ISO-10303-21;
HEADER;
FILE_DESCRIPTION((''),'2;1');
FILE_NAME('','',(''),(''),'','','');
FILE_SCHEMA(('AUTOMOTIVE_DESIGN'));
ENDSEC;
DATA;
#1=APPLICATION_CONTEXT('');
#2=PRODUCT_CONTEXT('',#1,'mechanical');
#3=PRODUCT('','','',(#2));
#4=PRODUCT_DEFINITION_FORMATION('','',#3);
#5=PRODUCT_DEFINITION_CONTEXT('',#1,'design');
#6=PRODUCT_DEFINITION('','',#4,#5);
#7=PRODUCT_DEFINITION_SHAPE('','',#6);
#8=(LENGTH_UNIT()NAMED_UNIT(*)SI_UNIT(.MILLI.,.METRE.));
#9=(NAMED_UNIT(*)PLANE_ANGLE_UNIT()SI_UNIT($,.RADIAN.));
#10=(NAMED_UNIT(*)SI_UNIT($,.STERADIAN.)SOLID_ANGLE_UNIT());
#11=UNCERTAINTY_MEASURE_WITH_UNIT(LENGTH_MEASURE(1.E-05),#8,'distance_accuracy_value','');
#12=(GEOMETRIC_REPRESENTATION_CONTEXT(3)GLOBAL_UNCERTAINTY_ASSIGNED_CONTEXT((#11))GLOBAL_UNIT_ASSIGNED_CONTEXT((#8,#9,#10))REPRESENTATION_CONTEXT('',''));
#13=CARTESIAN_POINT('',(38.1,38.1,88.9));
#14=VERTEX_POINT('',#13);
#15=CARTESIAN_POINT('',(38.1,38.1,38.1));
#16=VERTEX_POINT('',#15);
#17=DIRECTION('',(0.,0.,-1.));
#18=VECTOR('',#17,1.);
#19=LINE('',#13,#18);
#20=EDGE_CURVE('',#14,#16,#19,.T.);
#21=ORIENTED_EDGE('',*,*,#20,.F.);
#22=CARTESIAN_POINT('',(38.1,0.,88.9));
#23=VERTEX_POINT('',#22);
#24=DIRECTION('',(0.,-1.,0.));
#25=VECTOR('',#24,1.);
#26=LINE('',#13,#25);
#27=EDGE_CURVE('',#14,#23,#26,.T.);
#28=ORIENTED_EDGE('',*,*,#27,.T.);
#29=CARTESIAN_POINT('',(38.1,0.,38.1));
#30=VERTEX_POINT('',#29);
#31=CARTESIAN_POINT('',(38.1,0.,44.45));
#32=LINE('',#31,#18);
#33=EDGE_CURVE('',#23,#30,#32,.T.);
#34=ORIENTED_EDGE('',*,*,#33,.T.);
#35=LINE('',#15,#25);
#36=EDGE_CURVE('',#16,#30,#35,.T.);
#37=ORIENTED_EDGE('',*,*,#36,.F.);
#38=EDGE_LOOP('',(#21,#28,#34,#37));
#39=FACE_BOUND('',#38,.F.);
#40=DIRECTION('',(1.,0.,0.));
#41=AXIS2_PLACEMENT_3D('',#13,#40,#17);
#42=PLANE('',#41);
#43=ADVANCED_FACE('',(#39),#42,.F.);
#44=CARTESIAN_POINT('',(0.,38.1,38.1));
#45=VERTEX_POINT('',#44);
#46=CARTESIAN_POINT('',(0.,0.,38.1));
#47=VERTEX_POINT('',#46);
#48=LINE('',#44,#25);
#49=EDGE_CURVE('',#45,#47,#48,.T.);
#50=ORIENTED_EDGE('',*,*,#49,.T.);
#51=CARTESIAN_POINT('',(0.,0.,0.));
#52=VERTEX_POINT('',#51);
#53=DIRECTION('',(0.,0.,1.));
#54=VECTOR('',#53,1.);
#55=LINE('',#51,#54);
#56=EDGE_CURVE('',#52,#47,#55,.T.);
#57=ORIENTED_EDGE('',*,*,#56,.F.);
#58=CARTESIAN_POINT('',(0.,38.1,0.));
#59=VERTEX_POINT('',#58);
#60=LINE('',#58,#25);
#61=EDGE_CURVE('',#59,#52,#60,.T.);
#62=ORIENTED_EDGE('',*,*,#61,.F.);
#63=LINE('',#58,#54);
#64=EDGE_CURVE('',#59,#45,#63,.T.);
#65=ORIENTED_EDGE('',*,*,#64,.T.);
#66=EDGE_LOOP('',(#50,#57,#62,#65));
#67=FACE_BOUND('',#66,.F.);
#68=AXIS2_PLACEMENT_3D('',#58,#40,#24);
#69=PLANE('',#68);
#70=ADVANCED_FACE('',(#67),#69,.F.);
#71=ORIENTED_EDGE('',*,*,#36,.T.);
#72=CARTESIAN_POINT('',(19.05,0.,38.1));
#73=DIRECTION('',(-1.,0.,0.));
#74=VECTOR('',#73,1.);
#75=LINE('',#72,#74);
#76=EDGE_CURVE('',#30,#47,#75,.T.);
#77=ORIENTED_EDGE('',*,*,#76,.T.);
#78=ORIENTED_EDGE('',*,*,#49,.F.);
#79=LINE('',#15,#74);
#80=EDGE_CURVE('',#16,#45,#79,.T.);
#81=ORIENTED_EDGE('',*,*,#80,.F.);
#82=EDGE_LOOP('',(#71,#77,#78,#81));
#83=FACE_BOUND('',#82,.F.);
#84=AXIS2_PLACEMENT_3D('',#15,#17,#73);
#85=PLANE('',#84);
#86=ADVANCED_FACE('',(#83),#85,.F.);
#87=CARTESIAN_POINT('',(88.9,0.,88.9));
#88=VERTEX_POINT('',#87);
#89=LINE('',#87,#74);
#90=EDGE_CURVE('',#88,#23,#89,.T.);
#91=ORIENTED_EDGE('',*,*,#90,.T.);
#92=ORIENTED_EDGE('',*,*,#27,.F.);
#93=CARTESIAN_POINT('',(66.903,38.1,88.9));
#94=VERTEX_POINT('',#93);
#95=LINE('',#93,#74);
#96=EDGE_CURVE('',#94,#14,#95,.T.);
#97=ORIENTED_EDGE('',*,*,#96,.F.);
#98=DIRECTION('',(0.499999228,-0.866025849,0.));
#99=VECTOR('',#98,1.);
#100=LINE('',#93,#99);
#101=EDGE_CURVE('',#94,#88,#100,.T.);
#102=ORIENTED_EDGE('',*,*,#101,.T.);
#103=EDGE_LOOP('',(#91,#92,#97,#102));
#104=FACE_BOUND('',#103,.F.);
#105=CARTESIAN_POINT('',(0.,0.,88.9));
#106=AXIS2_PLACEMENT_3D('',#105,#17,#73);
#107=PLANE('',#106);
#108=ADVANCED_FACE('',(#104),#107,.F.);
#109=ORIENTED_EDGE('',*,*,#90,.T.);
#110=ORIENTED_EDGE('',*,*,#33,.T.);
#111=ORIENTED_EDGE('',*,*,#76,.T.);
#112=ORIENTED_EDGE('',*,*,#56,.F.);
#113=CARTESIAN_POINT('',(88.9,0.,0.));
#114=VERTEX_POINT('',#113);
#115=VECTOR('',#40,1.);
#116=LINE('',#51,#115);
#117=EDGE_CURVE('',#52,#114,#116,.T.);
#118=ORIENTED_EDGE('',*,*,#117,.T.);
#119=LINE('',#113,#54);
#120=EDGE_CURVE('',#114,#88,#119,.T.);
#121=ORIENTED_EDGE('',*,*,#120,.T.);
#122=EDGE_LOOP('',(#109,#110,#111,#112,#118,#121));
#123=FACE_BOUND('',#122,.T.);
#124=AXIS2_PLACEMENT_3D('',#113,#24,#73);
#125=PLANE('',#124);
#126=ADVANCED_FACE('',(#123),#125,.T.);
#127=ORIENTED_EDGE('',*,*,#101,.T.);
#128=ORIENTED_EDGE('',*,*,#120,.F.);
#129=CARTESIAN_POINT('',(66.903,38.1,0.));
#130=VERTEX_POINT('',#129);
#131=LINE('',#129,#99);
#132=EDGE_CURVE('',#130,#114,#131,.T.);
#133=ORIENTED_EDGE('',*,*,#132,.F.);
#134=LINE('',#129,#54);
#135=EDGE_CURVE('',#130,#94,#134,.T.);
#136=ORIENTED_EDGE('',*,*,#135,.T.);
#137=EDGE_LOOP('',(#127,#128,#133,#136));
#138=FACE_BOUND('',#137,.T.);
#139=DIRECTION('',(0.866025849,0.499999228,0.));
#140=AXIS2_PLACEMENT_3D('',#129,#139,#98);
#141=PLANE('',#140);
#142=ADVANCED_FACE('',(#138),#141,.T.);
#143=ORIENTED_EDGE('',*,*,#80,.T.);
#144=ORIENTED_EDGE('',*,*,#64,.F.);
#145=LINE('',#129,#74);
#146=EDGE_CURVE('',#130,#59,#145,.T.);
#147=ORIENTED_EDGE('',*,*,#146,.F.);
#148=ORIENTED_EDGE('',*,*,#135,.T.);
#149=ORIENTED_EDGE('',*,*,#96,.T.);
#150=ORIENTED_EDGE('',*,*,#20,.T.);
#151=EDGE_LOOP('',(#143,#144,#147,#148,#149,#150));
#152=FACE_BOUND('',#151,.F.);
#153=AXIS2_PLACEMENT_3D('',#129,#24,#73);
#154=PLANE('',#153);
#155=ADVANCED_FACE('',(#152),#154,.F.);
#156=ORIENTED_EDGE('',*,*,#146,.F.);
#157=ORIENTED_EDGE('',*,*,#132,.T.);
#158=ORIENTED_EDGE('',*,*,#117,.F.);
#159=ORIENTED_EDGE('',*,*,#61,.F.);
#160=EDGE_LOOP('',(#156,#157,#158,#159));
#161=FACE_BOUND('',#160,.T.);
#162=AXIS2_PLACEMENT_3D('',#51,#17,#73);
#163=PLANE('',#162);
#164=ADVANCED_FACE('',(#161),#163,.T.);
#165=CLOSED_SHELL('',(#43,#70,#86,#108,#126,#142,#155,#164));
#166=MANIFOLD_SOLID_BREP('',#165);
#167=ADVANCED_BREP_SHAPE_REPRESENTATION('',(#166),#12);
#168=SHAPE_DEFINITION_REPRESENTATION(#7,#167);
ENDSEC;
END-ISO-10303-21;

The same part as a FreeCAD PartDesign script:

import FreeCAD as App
import Part
import Sketcher
Q = App.Units.Quantity


def add_polygon(sketch, points):
    """Adds a closed chain of lines whose ends are joined by coincident constraints."""
    first, n = sketch.GeometryCount, len(points)
    for a, b in zip(points, points[1:] + points[:1]):
        sketch.addGeometry(Part.LineSegment(App.Vector(*a, 0), App.Vector(*b, 0)), False)
    for i in range(n):
        sketch.addConstraint(Sketcher.Constraint("Coincident", first + i, 2, first + (i + 1) % n, 1))

doc = App.newDocument("Part")
body = doc.addObject("PartDesign::Body", "Body")

sketch1 = doc.addObject("Sketcher::SketchObject", "Sketch")
body.addObject(sketch1)
sketch1.AttachmentSupport = (doc.XY_Plane, [""])
sketch1.MapMode = "FlatFace"
add_polygon(sketch1, [(0, 38), (0, 0), (67, 0), (67, 38)])
sketch1.addConstraint(Sketcher.Constraint("Vertical", 0))
sketch1.addConstraint(Sketcher.Constraint("Horizontal", 1))
sketch1.addConstraint(Sketcher.Constraint("Vertical", 2))
sketch1.addConstraint(Sketcher.Constraint("Horizontal", 3))
sketch1.addConstraint(Sketcher.Constraint("Coincident", 0, 2, -1, 1))
sketch1.addConstraint(Sketcher.Constraint("DistanceY", 0, 2, 0, 1, Q("1.5 in")))
sketch1.addConstraint(Sketcher.Constraint("DistanceX", 1, 1, 1, 2, Q("66.903 mm")))
pad1 = doc.addObject("PartDesign::Pad", "Pad")
body.addObject(pad1)
pad1.Profile = sketch1
pad1.Length = Q("3.5 in")

sketch2 = doc.addObject("Sketcher::SketchObject", "Sketch001")
body.addObject(sketch2)
sketch2.AttachmentSupport = (doc.XZ_Plane, [""])
sketch2.MapMode = "FlatFace"
sketch2.AttachmentOffset = App.Placement(App.Vector(0, 0, -1.5 * 25.4), App.Rotation())
add_polygon(sketch2, [(0, 38), (0, 89), (38, 89), (38, 38)])
sketch2.addConstraint(Sketcher.Constraint("Vertical", 0))
sketch2.addConstraint(Sketcher.Constraint("Horizontal", 1))
sketch2.addConstraint(Sketcher.Constraint("Vertical", 2))
sketch2.addConstraint(Sketcher.Constraint("Horizontal", 3))
sketch2.addConstraint(Sketcher.Constraint("PointOnObject", 0, 2, -2))
sketch2.addConstraint(Sketcher.Constraint("DistanceY", 0, 1, 0, 2, Q("2 in")))
sketch2.addConstraint(Sketcher.Constraint("DistanceX", 1, 1, 1, 2, Q("1.5 in")))
sketch2.addConstraint(Sketcher.Constraint("DistanceY", -1, 1, 2, 2, Q("1.5 in")))
pocket1 = doc.addObject("PartDesign::Pocket", "Pocket")
body.addObject(pocket1)
pocket1.Profile = sketch2
pocket1.Type = "ThroughAll"
pocket1.Reversed = True

sketch3 = doc.addObject("Sketcher::SketchObject", "Sketch002")
body.addObject(sketch3)
sketch3.AttachmentSupport = (doc.XY_Plane, [""])
sketch3.MapMode = "FlatFace"
add_polygon(sketch3, [(67, 0), (67, 38), (89, 0)])
sketch3.addConstraint(Sketcher.Constraint("Vertical", 0))
sketch3.addConstraint(Sketcher.Constraint("Horizontal", 2))
sketch3.addConstraint(Sketcher.Constraint("PointOnObject", 1, 2, -1))
sketch3.addConstraint(Sketcher.Constraint("Angle", 1, Q("-60 deg")))
sketch3.addConstraint(Sketcher.Constraint("DistanceY", 0, 1, 0, 2, Q("1.5 in")))
sketch3.addConstraint(Sketcher.Constraint("DistanceX", -1, 1, 1, 2, Q("3.5 in")))
pad2 = doc.addObject("PartDesign::Pad", "Pad001")
body.addObject(pad2)
pad2.Profile = sketch3
pad2.Length = Q("3.5 in")

doc.recompute()
